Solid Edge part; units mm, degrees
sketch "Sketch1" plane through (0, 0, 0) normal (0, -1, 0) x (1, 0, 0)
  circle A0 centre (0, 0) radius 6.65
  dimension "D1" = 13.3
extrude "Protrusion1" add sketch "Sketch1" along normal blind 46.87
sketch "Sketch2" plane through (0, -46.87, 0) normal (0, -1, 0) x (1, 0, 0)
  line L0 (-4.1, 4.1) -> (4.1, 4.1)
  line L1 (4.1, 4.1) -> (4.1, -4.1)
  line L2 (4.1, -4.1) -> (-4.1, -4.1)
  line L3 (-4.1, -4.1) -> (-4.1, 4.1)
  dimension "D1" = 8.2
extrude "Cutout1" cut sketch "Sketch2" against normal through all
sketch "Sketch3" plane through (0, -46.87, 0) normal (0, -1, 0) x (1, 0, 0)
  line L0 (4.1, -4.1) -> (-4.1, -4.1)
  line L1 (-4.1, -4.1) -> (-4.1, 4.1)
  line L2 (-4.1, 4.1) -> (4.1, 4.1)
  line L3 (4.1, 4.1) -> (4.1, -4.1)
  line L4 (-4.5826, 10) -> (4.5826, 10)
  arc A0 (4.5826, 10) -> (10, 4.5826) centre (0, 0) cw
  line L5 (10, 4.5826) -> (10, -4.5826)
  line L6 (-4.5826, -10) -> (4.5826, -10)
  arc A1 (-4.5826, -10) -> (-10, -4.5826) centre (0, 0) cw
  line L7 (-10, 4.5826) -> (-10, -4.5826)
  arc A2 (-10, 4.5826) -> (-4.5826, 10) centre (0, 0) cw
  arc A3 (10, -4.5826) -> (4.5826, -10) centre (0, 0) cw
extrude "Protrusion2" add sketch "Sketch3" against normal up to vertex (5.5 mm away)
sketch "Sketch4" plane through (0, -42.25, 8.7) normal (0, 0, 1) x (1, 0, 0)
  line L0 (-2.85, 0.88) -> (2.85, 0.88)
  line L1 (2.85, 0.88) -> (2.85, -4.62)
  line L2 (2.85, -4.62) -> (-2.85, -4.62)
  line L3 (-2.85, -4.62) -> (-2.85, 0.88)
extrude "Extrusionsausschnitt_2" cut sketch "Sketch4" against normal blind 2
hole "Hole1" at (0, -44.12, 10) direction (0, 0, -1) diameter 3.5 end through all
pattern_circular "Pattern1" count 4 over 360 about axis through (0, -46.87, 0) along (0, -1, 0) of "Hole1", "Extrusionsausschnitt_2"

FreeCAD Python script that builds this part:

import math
import FreeCAD as App
import Part
import Sketcher


def add_polygon(sketch, points):
    """Adds a closed chain of lines whose ends are joined by coincident constraints."""
    first, n = sketch.GeometryCount, len(points)
    for a, b in zip(points, points[1:] + points[:1]):
        sketch.addGeometry(Part.LineSegment(App.Vector(*a, 0), App.Vector(*b, 0)), False)
    for i in range(n):
        sketch.addConstraint(Sketcher.Constraint("Coincident", first + i, 2, first + (i + 1) % n, 1))

doc = App.newDocument("Part")
body = doc.addObject("PartDesign::Body", "Body")

# Sketch on XZ plane
sketch1 = body.newObject("Sketcher::SketchObject", "Sketch")
sketch1.AttachmentSupport = (doc.getObject("XZ_Plane"), [""])
sketch1.MapMode = "FlatFace"
sketch1.addGeometry(Part.Circle(App.Vector(0, 0, 0), App.Vector(0, 0, 1), 7), False)
sketch1.addConstraint(Sketcher.Constraint("Coincident", 0, 3, -1, 1))
sketch1.addConstraint(Sketcher.Constraint("Diameter", 0, 13.3))
pad1 = body.newObject("PartDesign::Pad", "Pad")
pad1.Profile = sketch1
pad1.Length = 46.87

# Sketch on XZ plane
sketch2 = body.newObject("Sketcher::SketchObject", "Sketch001")
sketch2.AttachmentSupport = (doc.getObject("XZ_Plane"), [""])
sketch2.MapMode = "FlatFace"
sketch2.AttachmentOffset = App.Placement(App.Vector(0, 0, 46.87), App.Rotation())
add_polygon(sketch2, [(4, 4), (-4, 4), (-4, -4), (4, -4)])  # lines 0-3
sketch2.addConstraint(Sketcher.Constraint("Horizontal", 0))
sketch2.addConstraint(Sketcher.Constraint("Vertical", 1))
sketch2.addConstraint(Sketcher.Constraint("Horizontal", 2))
sketch2.addConstraint(Sketcher.Constraint("Vertical", 3))
sketch2.addConstraint(Sketcher.Constraint("Symmetric", 0, 2, 2, 2, -1, 1))
sketch2.addConstraint(Sketcher.Constraint("Equal", 2, 1))
sketch2.addConstraint(Sketcher.Constraint("DistanceX", 0, 2, -1, 1, 4.1))
pocket1 = body.newObject("PartDesign::Pocket", "Pocket")
pocket1.Profile = sketch2
pocket1.Type = "ThroughAll"

# Sketch on XZ plane
sketch3 = body.newObject("Sketcher::SketchObject", "Sketch002")
sketch3.AttachmentSupport = (doc.getObject("XZ_Plane"), [""])
sketch3.MapMode = "FlatFace"
sketch3.AttachmentOffset = App.Placement(App.Vector(0, 0, 46.87), App.Rotation())
sketch3.addGeometry(Part.LineSegment(App.Vector(5, 10, 0), App.Vector(-5, 10, 0)), False)  # 0
sketch3.addGeometry(Part.ArcOfCircle(Part.Circle(App.Vector(0, 0, 0), App.Vector(0, 0, 1), 11), math.radians(115), math.radians(155)), False)  # 1
sketch3.addGeometry(Part.LineSegment(App.Vector(-10, 5, 0), App.Vector(-10, -5, 0)), False)  # 2
sketch3.addGeometry(Part.ArcOfCircle(Part.Circle(App.Vector(0, 0, 0), App.Vector(0, 0, 1), 11), math.radians(-155), math.radians(-115)), False)  # 3
sketch3.addGeometry(Part.LineSegment(App.Vector(-5, -10, 0), App.Vector(5, -10, 0)), False)  # 4
sketch3.addGeometry(Part.ArcOfCircle(Part.Circle(App.Vector(0, 0, 0), App.Vector(0, 0, 1), 11), math.radians(-65), math.radians(-25)), False)  # 5
sketch3.addGeometry(Part.LineSegment(App.Vector(10, -5, 0), App.Vector(10, 5, 0)), False)  # 6
sketch3.addGeometry(Part.ArcOfCircle(Part.Circle(App.Vector(0, 0, 0), App.Vector(0, 0, 1), 11), math.radians(25), math.radians(65)), False)  # 7
add_polygon(sketch3, [(4, 4), (4, -4), (-4, -4), (-4, 4)])  # lines 8-11
sketch3.addConstraint(Sketcher.Constraint("Coincident", 0, 2, 1, 1))
sketch3.addConstraint(Sketcher.Constraint("Coincident", 1, 2, 2, 1))
sketch3.addConstraint(Sketcher.Constraint("Coincident", 2, 2, 3, 1))
sketch3.addConstraint(Sketcher.Constraint("Coincident", 3, 2, 4, 1))
sketch3.addConstraint(Sketcher.Constraint("Coincident", 4, 2, 5, 1))
sketch3.addConstraint(Sketcher.Constraint("Coincident", 5, 2, 6, 1))
sketch3.addConstraint(Sketcher.Constraint("Coincident", 6, 2, 7, 1))
sketch3.addConstraint(Sketcher.Constraint("Coincident", 7, 2, 0, 1))
sketch3.addConstraint(Sketcher.Constraint("Horizontal", 0))
sketch3.addConstraint(Sketcher.Constraint("Vertical", 2))
sketch3.addConstraint(Sketcher.Constraint("Horizontal", 4))
sketch3.addConstraint(Sketcher.Constraint("Vertical", 6))
sketch3.addConstraint(Sketcher.Constraint("Vertical", 8))
sketch3.addConstraint(Sketcher.Constraint("Horizontal", 9))
sketch3.addConstraint(Sketcher.Constraint("Vertical", 10))
sketch3.addConstraint(Sketcher.Constraint("Horizontal", 11))
sketch3.addConstraint(Sketcher.Constraint("Coincident", 1, 3, -1, 1))
sketch3.addConstraint(Sketcher.Constraint("Coincident", 3, 3, -1, 1))
sketch3.addConstraint(Sketcher.Constraint("Coincident", 5, 3, -1, 1))
sketch3.addConstraint(Sketcher.Constraint("Coincident", 7, 3, -1, 1))
sketch3.addConstraint(Sketcher.Constraint("Equal", 1, 3))
sketch3.addConstraint(Sketcher.Constraint("Equal", 3, 5))
sketch3.addConstraint(Sketcher.Constraint("Equal", 5, 7))
sketch3.addConstraint(Sketcher.Constraint("Symmetric", 8, 2, 10, 2, -1, 1))
sketch3.addConstraint(Sketcher.Constraint("Horizontal", 2, 2, 5, 2))
sketch3.addConstraint(Sketcher.Constraint("Vertical", 0, 2, 3, 2))
sketch3.addConstraint(Sketcher.Constraint("Equal", 4, 2))
sketch3.addConstraint(Sketcher.Constraint("Equal", 11, 8))
sketch3.addConstraint(Sketcher.Constraint("Radius", 1, 11.0))
sketch3.addConstraint(Sketcher.Constraint("DistanceX", 9, 2, 9, 1, 8.2))
sketch3.addConstraint(Sketcher.Constraint("DistanceY", -1, 1, 0, 2, 10.0))
pad2 = body.newObject("PartDesign::Pad", "Pad001")
pad2.Profile = sketch3
pad2.Length = 5.5
pad2.Reversed = True

# Sketch on XY plane
sketch4 = body.newObject("Sketcher::SketchObject", "Sketch003")
sketch4.AttachmentSupport = (doc.getObject("XY_Plane"), [""])
sketch4.MapMode = "FlatFace"
sketch4.AttachmentOffset = App.Placement(App.Vector(0, 0, 8.7), App.Rotation())
add_polygon(sketch4, [(3, -41), (-3, -41), (-3, -47), (3, -47)])  # lines 0-3
sketch4.addConstraint(Sketcher.Constraint("Horizontal", 0))
sketch4.addConstraint(Sketcher.Constraint("Vertical", 1))
sketch4.addConstraint(Sketcher.Constraint("Horizontal", 2))
sketch4.addConstraint(Sketcher.Constraint("Vertical", 3))
sketch4.addConstraint(Sketcher.Constraint("DistanceX", 0, 2, 0, 1, 5.7))
sketch4.addConstraint(Sketcher.Constraint("DistanceY", 1, 2, 1, 1, 5.5))
sketch4.addConstraint(Sketcher.Constraint("DistanceX", 0, 2, -1, 1, 2.85))
sketch4.addConstraint(Sketcher.Constraint("DistanceY", 0, 2, -1, 1, 41.37))
pocket2 = body.newObject("PartDesign::Pocket", "Pocket001")
pocket2.Profile = sketch4
pocket2.Length = 2

# Sketch on XY plane
sketch5 = body.newObject("Sketcher::SketchObject", "Sketch004")
sketch5.AttachmentSupport = (doc.getObject("XY_Plane"), [""])
sketch5.MapMode = "FlatFace"
sketch5.AttachmentOffset = App.Placement(App.Vector(0, 0, 10), App.Rotation())
sketch5.addGeometry(Part.Circle(App.Vector(0, -44.1, 0), App.Vector(0, 0, 1), 1.8), False)
sketch5.addConstraint(Sketcher.Constraint("PointOnObject", 0, 3, -2))
sketch5.addConstraint(Sketcher.Constraint("Diameter", 0, 3.5))
sketch5.addConstraint(Sketcher.Constraint("DistanceY", 0, 3, -1, 1, 44.12))
doc.recompute()
hole = body.newObject("PartDesign::Hole", "Hole")
hole.Profile = sketch5
hole.ThreadType = "None"
hole.Diameter = 3.5
hole.DepthType = "ThroughAll"
doc.recompute()

polarpattern = body.newObject("PartDesign::PolarPattern", "PolarPattern")
polarpattern.Originals = [hole, pocket2]
polarpattern.Axis = (doc.getObject("Y_Axis"), [""])
polarpattern.Angle = 360
polarpattern.Occurrences = 4
body.Tip = polarpattern

doc.recompute()
